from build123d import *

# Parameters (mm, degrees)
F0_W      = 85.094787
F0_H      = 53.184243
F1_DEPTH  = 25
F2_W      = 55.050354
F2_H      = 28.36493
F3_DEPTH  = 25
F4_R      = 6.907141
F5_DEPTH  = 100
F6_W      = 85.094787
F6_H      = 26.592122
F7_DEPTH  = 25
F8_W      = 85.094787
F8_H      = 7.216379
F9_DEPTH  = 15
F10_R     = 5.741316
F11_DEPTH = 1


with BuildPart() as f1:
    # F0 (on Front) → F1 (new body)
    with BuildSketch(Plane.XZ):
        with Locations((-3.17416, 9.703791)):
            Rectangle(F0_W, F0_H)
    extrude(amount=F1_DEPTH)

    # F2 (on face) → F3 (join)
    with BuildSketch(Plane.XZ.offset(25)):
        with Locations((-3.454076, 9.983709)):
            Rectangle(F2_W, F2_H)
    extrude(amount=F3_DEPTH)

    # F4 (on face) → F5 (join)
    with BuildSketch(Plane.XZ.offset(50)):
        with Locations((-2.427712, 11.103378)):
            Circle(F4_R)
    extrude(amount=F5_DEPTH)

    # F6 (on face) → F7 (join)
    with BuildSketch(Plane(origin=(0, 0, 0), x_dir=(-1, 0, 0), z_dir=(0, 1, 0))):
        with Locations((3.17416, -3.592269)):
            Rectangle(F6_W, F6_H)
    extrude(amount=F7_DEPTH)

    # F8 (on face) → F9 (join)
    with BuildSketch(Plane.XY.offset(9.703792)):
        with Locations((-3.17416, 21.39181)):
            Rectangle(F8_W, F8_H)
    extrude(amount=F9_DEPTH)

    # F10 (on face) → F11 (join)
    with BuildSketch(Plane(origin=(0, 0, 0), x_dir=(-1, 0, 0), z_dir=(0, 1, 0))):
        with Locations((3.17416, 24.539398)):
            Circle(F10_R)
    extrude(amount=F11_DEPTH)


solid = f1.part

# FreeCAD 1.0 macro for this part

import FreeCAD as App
import Part
import Sketcher

V = App.Vector


def add_polygon(sketch, points):
    """Adds a closed chain of lines whose ends are joined by coincident constraints."""
    first, n = sketch.GeometryCount, len(points)
    for a, b in zip(points, points[1:] + points[:1]):
        sketch.addGeometry(Part.LineSegment(App.Vector(*a, 0), App.Vector(*b, 0)), False)
    for i in range(n):
        sketch.addConstraint(Sketcher.Constraint("Coincident", first + i, 2, first + (i + 1) % n, 1))

doc = App.newDocument("Part")
body = doc.addObject("PartDesign::Body", "Body")

sketch1 = body.newObject("Sketcher::SketchObject", "Sketch")
sketch1.AttachmentSupport = (doc.getObject("XZ_Plane"), [""])
sketch1.MapMode = "FlatFace"
add_polygon(sketch1, [(-46, 36), (-46, -17), (39, -17), (39, 36)])
sketch1.addConstraint(Sketcher.Constraint("Vertical", 0))
sketch1.addConstraint(Sketcher.Constraint("Horizontal", 1))
sketch1.addConstraint(Sketcher.Constraint("Vertical", 2))
sketch1.addConstraint(Sketcher.Constraint("Horizontal", 3))
sketch1.addConstraint(Sketcher.Constraint("DistanceX", 1, 1, 1, 2, 85.094787))
sketch1.addConstraint(Sketcher.Constraint("DistanceY", 0, 2, 0, 1, 53.184243))
sketch1.addConstraint(Sketcher.Constraint("DistanceY", 0, 2, -1, 1, 16.88833))
sketch1.addConstraint(Sketcher.Constraint("DistanceX", 0, 2, -1, 1, 45.721553))
pad1 = body.newObject("PartDesign::Pad", "Pad")
pad1.Profile = sketch1
pad1.Length = 25

sketch2 = body.newObject("Sketcher::SketchObject", "Sketch001")
sketch2.AttachmentSupport = (doc.getObject("XZ_Plane"), [""])
sketch2.MapMode = "FlatFace"
sketch2.AttachmentOffset = App.Placement(V(0, 0, 25), App.Rotation())
add_polygon(sketch2, [(-31, 24), (-31, -4), (24, -4), (24, 24)])
sketch2.addConstraint(Sketcher.Constraint("Vertical", 0))
sketch2.addConstraint(Sketcher.Constraint("Horizontal", 1))
sketch2.addConstraint(Sketcher.Constraint("Vertical", 2))
sketch2.addConstraint(Sketcher.Constraint("Horizontal", 3))
sketch2.addConstraint(Sketcher.Constraint("DistanceY", 0, 2, 0, 1, 28.36493))
sketch2.addConstraint(Sketcher.Constraint("DistanceX", -1, 1, 1, 2, 24.071101))
sketch2.addConstraint(Sketcher.Constraint("DistanceX", 1, 1, 1, 2, 55.050354))
sketch2.addConstraint(Sketcher.Constraint("DistanceY", 0, 2, -1, 1, 4.198756))
pad2 = body.newObject("PartDesign::Pad", "Pad001")
pad2.Profile = sketch2
pad2.Length = 25

sketch3 = body.newObject("Sketcher::SketchObject", "Sketch002")
sketch3.AttachmentSupport = (doc.getObject("XZ_Plane"), [""])
sketch3.MapMode = "FlatFace"
sketch3.AttachmentOffset = App.Placement(V(0, 0, 50), App.Rotation())
sketch3.addGeometry(Part.Circle(V(-2, 11, 0), V(0, 0, 1), 7), False)
sketch3.addConstraint(Sketcher.Constraint("Diameter", 0, 13.814282))
sketch3.addConstraint(Sketcher.Constraint("DistanceX", 0, 3, -1, 1, 2.427712))
sketch3.addConstraint(Sketcher.Constraint("DistanceY", -1, 1, 0, 3, 11.103378))
pad3 = body.newObject("PartDesign::Pad", "Pad002")
pad3.Profile = sketch3
pad3.Length = 100

sketch4 = body.newObject("Sketcher::SketchObject", "Sketch003")
sketch4.AttachmentSupport = (doc.getObject("XZ_Plane"), [""])
sketch4.MapMode = "FlatFace"
add_polygon(sketch4, [(39, 10), (39, -17), (-46, -17), (-46, 10)])
sketch4.addConstraint(Sketcher.Constraint("Vertical", 0))
sketch4.addConstraint(Sketcher.Constraint("Horizontal", 1))
sketch4.addConstraint(Sketcher.Constraint("Vertical", 2))
sketch4.addConstraint(Sketcher.Constraint("Horizontal", 3))
sketch4.addConstraint(Sketcher.Constraint("DistanceY", 0, 2, 0, 1, 26.592122))
sketch4.addConstraint(Sketcher.Constraint("DistanceX", 1, 2, 1, 1, 85.094787))
sketch4.addConstraint(Sketcher.Constraint("DistanceY", 0, 2, -1, 1, 16.88833))
sketch4.addConstraint(Sketcher.Constraint("DistanceX", -1, 1, 0, 2, 39.373233))
pad4 = body.newObject("PartDesign::Pad", "Pad003")
pad4.Profile = sketch4
pad4.Length = 25
pad4.Reversed = True

sketch5 = body.newObject("Sketcher::SketchObject", "Sketch004")
sketch5.AttachmentSupport = (doc.getObject("XY_Plane"), [""])
sketch5.MapMode = "FlatFace"
sketch5.AttachmentOffset = App.Placement(V(0, 0, 9.703792), App.Rotation())
add_polygon(sketch5, [(-46, 25), (-46, 18), (39, 18), (39, 25)])
sketch5.addConstraint(Sketcher.Constraint("Vertical", 0))
sketch5.addConstraint(Sketcher.Constraint("Horizontal", 1))
sketch5.addConstraint(Sketcher.Constraint("Vertical", 2))
sketch5.addConstraint(Sketcher.Constraint("Horizontal", 3))
sketch5.addConstraint(Sketcher.Constraint("DistanceY", -1, 1, 2, 2, 25.0))
sketch5.addConstraint(Sketcher.Constraint("DistanceY", 0, 2, 0, 1, 7.216379))
sketch5.addConstraint(Sketcher.Constraint("DistanceX", 1, 1, 1, 2, 85.094787))
sketch5.addConstraint(Sketcher.Constraint("DistanceX", 0, 2, -1, 1, 45.721553))
pad5 = body.newObject("PartDesign::Pad", "Pad004")
pad5.Profile = sketch5
pad5.Length = 15

sketch6 = body.newObject("Sketcher::SketchObject", "Sketch005")
sketch6.AttachmentSupport = (doc.getObject("XZ_Plane"), [""])
sketch6.MapMode = "FlatFace"
sketch6.addGeometry(Part.Circle(V(-3, 25, 0), V(0, 0, 1), 6), False)
sketch6.addConstraint(Sketcher.Constraint("Diameter", 0, 11.482632))
sketch6.addConstraint(Sketcher.Constraint("DistanceX", 0, 3, -1, 1, 3.17416))
sketch6.addConstraint(Sketcher.Constraint("DistanceY", -1, 1, 0, 3, 24.539398))
pad6 = body.newObject("PartDesign::Pad", "Pad005")
pad6.Profile = sketch6
pad6.Length = 1
pad6.Reversed = True

doc.recompute()
